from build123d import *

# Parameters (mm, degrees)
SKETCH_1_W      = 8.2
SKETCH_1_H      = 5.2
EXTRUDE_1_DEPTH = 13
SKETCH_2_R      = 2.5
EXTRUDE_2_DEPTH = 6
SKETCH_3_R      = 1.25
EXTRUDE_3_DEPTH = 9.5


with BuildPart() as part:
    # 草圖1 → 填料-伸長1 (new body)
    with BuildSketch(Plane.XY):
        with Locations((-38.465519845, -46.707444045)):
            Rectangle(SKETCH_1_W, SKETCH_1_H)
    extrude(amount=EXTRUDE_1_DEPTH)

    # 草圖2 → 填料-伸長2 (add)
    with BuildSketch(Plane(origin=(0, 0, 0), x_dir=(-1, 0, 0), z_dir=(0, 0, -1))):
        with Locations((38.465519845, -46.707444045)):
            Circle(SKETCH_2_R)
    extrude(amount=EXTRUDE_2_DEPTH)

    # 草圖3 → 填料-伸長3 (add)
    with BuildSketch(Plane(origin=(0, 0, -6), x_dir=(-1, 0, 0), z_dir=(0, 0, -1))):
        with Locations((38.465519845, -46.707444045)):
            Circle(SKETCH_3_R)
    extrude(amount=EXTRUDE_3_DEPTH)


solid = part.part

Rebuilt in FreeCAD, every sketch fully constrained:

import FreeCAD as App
import Part
import Sketcher

V = App.Vector

doc = App.newDocument("Part")
body = doc.addObject("PartDesign::Body", "Body")

# Sketch on XY plane
sketch1 = body.newObject("Sketcher::SketchObject", "Sketch")
sketch1.AttachmentSupport = (doc.getObject("XY_Plane"), [""])
sketch1.MapMode = "FlatFace"
sketch1.addGeometry(Part.LineSegment(V(-42.56552, -44.107444, 0), V(-42.56552, -49.307444, 0)), False)
sketch1.addGeometry(Part.LineSegment(V(-42.56552, -49.307444, 0), V(-34.36552, -49.307444, 0)), False)
sketch1.addGeometry(Part.LineSegment(V(-34.36552, -49.307444, 0), V(-34.36552, -44.107444, 0)), False)
sketch1.addGeometry(Part.LineSegment(V(-34.36552, -44.107444, 0), V(-42.56552, -44.107444, 0)), False)
sketch1.addConstraint(Sketcher.Constraint("Coincident", 0, 2, 1, 1))
sketch1.addConstraint(Sketcher.Constraint("Coincident", 1, 2, 2, 1))
sketch1.addConstraint(Sketcher.Constraint("Coincident", 2, 2, 3, 1))
sketch1.addConstraint(Sketcher.Constraint("Coincident", 3, 2, 0, 1))
sketch1.addConstraint(Sketcher.Constraint("Vertical", 0))
sketch1.addConstraint(Sketcher.Constraint("Horizontal", 1))
sketch1.addConstraint(Sketcher.Constraint("Vertical", 2))
sketch1.addConstraint(Sketcher.Constraint("Horizontal", 3))
sketch1.addConstraint(Sketcher.Constraint("DistanceX", 1, 1, 1, 2, 8.2))
sketch1.addConstraint(Sketcher.Constraint("DistanceY", 0, 2, 0, 1, 5.2))
sketch1.addConstraint(Sketcher.Constraint("DistanceX", 0, 2, -1, 1, 42.56552))
sketch1.addConstraint(Sketcher.Constraint("DistanceY", 0, 2, -1, 1, 49.307444))
pad1 = body.newObject("PartDesign::Pad", "Pad")
pad1.Profile = sketch1
pad1.Length = 13

# Sketch on XY plane
sketch2 = body.newObject("Sketcher::SketchObject", "Sketch001")
sketch2.AttachmentSupport = (doc.getObject("XY_Plane"), [""])
sketch2.MapMode = "FlatFace"
sketch2.addGeometry(Part.Circle(V(-38.46552, -46.707444, 0), V(0, 0, 1), 2.5), False)
sketch2.addConstraint(Sketcher.Constraint("Diameter", 0, 5.0))
sketch2.addConstraint(Sketcher.Constraint("DistanceX", 0, 3, -1, 1, 38.46552))
sketch2.addConstraint(Sketcher.Constraint("DistanceY", 0, 3, -1, 1, 46.707444))
pad2 = body.newObject("PartDesign::Pad", "Pad001")
pad2.Profile = sketch2
pad2.Length = 6
pad2.Reversed = True

# Sketch on XY plane
sketch3 = body.newObject("Sketcher::SketchObject", "Sketch002")
sketch3.AttachmentSupport = (doc.getObject("XY_Plane"), [""])
sketch3.MapMode = "FlatFace"
sketch3.AttachmentOffset = App.Placement(V(0, 0, -6), App.Rotation())
sketch3.addGeometry(Part.Circle(V(-38.46552, -46.707444, 0), V(0, 0, 1), 1.25), False)
sketch3.addConstraint(Sketcher.Constraint("Diameter", 0, 2.5))
sketch3.addConstraint(Sketcher.Constraint("DistanceX", 0, 3, -1, 1, 38.46552))
sketch3.addConstraint(Sketcher.Constraint("DistanceY", 0, 3, -1, 1, 46.707444))
pad3 = body.newObject("PartDesign::Pad", "Pad002")
pad3.Profile = sketch3
pad3.Length = 9.5
pad3.Reversed = True

doc.recompute()
